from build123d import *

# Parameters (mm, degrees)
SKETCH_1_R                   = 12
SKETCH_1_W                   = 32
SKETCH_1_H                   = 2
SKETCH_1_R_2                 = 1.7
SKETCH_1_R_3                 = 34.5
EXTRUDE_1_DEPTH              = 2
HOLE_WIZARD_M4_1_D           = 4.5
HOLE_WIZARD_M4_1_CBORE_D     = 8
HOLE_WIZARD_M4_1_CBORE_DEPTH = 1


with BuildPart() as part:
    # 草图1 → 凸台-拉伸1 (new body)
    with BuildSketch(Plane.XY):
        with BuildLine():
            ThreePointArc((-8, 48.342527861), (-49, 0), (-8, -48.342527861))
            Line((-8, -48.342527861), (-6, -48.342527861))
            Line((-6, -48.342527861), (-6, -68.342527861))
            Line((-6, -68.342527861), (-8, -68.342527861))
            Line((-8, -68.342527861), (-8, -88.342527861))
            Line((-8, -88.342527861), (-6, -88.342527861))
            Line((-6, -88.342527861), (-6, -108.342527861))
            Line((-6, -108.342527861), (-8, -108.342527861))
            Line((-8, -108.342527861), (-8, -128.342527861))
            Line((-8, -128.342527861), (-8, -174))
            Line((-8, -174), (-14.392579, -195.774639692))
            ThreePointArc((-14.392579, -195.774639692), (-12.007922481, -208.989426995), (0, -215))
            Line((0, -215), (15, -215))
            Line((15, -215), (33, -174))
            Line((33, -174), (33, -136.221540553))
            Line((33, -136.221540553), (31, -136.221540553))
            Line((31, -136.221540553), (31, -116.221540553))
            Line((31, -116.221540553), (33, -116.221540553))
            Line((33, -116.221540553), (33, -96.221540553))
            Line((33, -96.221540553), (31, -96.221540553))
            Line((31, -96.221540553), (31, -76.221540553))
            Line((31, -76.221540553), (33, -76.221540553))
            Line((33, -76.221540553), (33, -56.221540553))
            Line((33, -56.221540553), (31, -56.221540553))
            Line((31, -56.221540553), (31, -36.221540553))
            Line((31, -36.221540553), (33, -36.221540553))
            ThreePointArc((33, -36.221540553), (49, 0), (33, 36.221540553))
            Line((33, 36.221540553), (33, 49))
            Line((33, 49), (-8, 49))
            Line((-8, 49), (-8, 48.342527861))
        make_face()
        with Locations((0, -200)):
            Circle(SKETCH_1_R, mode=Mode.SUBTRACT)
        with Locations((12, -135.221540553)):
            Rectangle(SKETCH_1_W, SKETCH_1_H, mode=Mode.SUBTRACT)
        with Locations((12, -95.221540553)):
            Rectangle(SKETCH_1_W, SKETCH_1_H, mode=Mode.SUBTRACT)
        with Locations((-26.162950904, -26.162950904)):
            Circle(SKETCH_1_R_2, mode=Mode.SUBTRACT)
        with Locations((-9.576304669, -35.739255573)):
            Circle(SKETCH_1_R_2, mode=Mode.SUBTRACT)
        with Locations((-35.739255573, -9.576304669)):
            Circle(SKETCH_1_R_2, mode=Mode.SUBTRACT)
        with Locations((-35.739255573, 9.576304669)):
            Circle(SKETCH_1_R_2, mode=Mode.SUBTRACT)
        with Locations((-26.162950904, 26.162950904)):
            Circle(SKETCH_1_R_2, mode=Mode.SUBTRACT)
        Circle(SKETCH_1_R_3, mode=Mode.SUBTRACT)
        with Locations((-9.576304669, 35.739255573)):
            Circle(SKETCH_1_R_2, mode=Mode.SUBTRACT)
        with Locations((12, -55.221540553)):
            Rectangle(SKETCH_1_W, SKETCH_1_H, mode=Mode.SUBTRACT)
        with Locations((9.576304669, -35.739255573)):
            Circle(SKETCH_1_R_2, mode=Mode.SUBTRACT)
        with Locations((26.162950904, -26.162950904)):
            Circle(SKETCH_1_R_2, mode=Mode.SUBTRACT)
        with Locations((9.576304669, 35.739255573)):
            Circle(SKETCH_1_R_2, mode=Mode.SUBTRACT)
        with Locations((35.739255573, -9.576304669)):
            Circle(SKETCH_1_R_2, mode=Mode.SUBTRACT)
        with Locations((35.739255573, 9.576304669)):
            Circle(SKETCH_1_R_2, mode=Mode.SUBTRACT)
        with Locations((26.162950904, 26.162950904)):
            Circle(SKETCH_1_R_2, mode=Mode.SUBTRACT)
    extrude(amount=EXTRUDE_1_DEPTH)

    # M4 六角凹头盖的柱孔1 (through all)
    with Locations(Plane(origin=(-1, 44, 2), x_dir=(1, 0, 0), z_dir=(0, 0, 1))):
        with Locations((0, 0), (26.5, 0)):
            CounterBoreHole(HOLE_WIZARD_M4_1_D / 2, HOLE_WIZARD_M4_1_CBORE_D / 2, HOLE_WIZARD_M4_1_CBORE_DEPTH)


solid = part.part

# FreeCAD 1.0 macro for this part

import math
import FreeCAD as App
import Part
import Sketcher

V = App.Vector


def add_polygon(sketch, points):
    """Adds a closed chain of lines whose ends are joined by coincident constraints."""
    first, n = sketch.GeometryCount, len(points)
    for a, b in zip(points, points[1:] + points[:1]):
        sketch.addGeometry(Part.LineSegment(App.Vector(*a, 0), App.Vector(*b, 0)), False)
    for i in range(n):
        sketch.addConstraint(Sketcher.Constraint("Coincident", first + i, 2, first + (i + 1) % n, 1))

doc = App.newDocument("Part")
body = doc.addObject("PartDesign::Body", "Body")

# Sketch on XY plane
sketch1 = body.newObject("Sketcher::SketchObject", "Sketch")
sketch1.AttachmentSupport = (doc.getObject("XY_Plane"), [""])
sketch1.MapMode = "FlatFace"
sketch1.addGeometry(Part.ArcOfCircle(Part.Circle(V(0, 0, 0), V(0, 0, 1), 49), math.radians(99), math.radians(261)), False)  # 0
sketch1.addGeometry(Part.LineSegment(V(-8, -48.3, 0), V(-6, -48.3, 0)), False)  # 1
sketch1.addGeometry(Part.LineSegment(V(-6, -48.3, 0), V(-6, -68.3, 0)), False)  # 2
sketch1.addGeometry(Part.LineSegment(V(-6, -68.3, 0), V(-8, -68.3, 0)), False)  # 3
sketch1.addGeometry(Part.LineSegment(V(-8, -68.3, 0), V(-8, -88.3, 0)), False)  # 4
sketch1.addGeometry(Part.LineSegment(V(-8, -88.3, 0), V(-6, -88.3, 0)), False)  # 5
sketch1.addGeometry(Part.LineSegment(V(-6, -88.3, 0), V(-6, -108.3, 0)), False)  # 6
sketch1.addGeometry(Part.LineSegment(V(-6, -108.3, 0), V(-8, -108.3, 0)), False)  # 7
sketch1.addGeometry(Part.LineSegment(V(-8, -108.3, 0), V(-8, -174, 0)), False)  # 8
sketch1.addGeometry(Part.LineSegment(V(-8, -174, 0), V(-14.4, -195.8, 0)), False)  # 9
sketch1.addGeometry(Part.ArcOfCircle(Part.Circle(V(0, -200, 0), V(0, 0, 1), 15), math.radians(164), math.radians(270)), False)  # 10
sketch1.addGeometry(Part.LineSegment(V(0, -215, 0), V(15, -215, 0)), False)  # 11
sketch1.addGeometry(Part.LineSegment(V(15, -215, 0), V(33, -174, 0)), False)  # 12
sketch1.addGeometry(Part.LineSegment(V(33, -174, 0), V(33, -136.2, 0)), False)  # 13
sketch1.addGeometry(Part.LineSegment(V(33, -136.2, 0), V(31, -136.2, 0)), False)  # 14
sketch1.addGeometry(Part.LineSegment(V(31, -136.2, 0), V(31, -116.2, 0)), False)  # 15
sketch1.addGeometry(Part.LineSegment(V(31, -116.2, 0), V(33, -116.2, 0)), False)  # 16
sketch1.addGeometry(Part.LineSegment(V(33, -116.2, 0), V(33, -96.2, 0)), False)  # 17
sketch1.addGeometry(Part.LineSegment(V(33, -96.2, 0), V(31, -96.2, 0)), False)  # 18
sketch1.addGeometry(Part.LineSegment(V(31, -96.2, 0), V(31, -76.2, 0)), False)  # 19
sketch1.addGeometry(Part.LineSegment(V(31, -76.2, 0), V(33, -76.2, 0)), False)  # 20
sketch1.addGeometry(Part.LineSegment(V(33, -76.2, 0), V(33, -56.2, 0)), False)  # 21
sketch1.addGeometry(Part.LineSegment(V(33, -56.2, 0), V(31, -56.2, 0)), False)  # 22
sketch1.addGeometry(Part.LineSegment(V(31, -56.2, 0), V(31, -36.2, 0)), False)  # 23
sketch1.addGeometry(Part.LineSegment(V(31, -36.2, 0), V(33, -36.2, 0)), False)  # 24
sketch1.addGeometry(Part.ArcOfCircle(Part.Circle(V(0, 0, 0), V(0, 0, 1), 49), math.radians(-48), math.radians(48)), False)  # 25
sketch1.addGeometry(Part.LineSegment(V(33, 36.2, 0), V(33, 49, 0)), False)  # 26
sketch1.addGeometry(Part.LineSegment(V(33, 49, 0), V(-8, 49, 0)), False)  # 27
sketch1.addGeometry(Part.LineSegment(V(-8, 49, 0), V(-8, 48.3, 0)), False)  # 28
sketch1.addGeometry(Part.Circle(V(0, -200, 0), V(0, 0, 1), 12), False)  # 29
add_polygon(sketch1, [(28, -136.2), (-4, -136.2), (-4, -134.2), (28, -134.2)])  # lines 30-33
add_polygon(sketch1, [(28, -96.2), (-4, -96.2), (-4, -94.2), (28, -94.2)])  # lines 34-37
sketch1.addGeometry(Part.Circle(V(-26.2, -26.2, 0), V(0, 0, 1), 1.7), False)  # 38
sketch1.addGeometry(Part.Circle(V(-9.6, -35.7, 0), V(0, 0, 1), 1.7), False)  # 39
sketch1.addGeometry(Part.Circle(V(-35.7, -9.6, 0), V(0, 0, 1), 1.7), False)  # 40
sketch1.addGeometry(Part.Circle(V(-35.7, 9.6, 0), V(0, 0, 1), 1.7), False)  # 41
sketch1.addGeometry(Part.Circle(V(-26.2, 26.2, 0), V(0, 0, 1), 1.7), False)  # 42
sketch1.addGeometry(Part.Circle(V(-9.6, 35.7, 0), V(0, 0, 1), 1.7), False)  # 43
add_polygon(sketch1, [(28, -56.2), (-4, -56.2), (-4, -54.2), (28, -54.2)])  # lines 44-47
sketch1.addGeometry(Part.Circle(V(9.6, -35.7, 0), V(0, 0, 1), 1.7), False)  # 48
sketch1.addGeometry(Part.Circle(V(26.2, -26.2, 0), V(0, 0, 1), 1.7), False)  # 49
sketch1.addGeometry(Part.Circle(V(0, 0, 0), V(0, 0, 1), 34.5), False)  # 50
sketch1.addGeometry(Part.Circle(V(9.6, 35.7, 0), V(0, 0, 1), 1.7), False)  # 51
sketch1.addGeometry(Part.Circle(V(35.7, -9.6, 0), V(0, 0, 1), 1.7), False)  # 52
sketch1.addGeometry(Part.Circle(V(26.2, 26.2, 0), V(0, 0, 1), 1.7), False)  # 53
sketch1.addGeometry(Part.Circle(V(35.7, 9.6, 0), V(0, 0, 1), 1.7), False)  # 54
sketch1.addConstraint([
    Sketcher.Constraint("Coincident", 0, 2, 1, 1),
    Sketcher.Constraint("Coincident", 1, 2, 2, 1),
    Sketcher.Constraint("Coincident", 2, 2, 3, 1),
    Sketcher.Constraint("Coincident", 3, 2, 4, 1),
    Sketcher.Constraint("Coincident", 4, 2, 5, 1),
    Sketcher.Constraint("Coincident", 5, 2, 6, 1),
    Sketcher.Constraint("Coincident", 6, 2, 7, 1),
    Sketcher.Constraint("Coincident", 7, 2, 8, 1),
    Sketcher.Constraint("Coincident", 8, 2, 9, 1),
    Sketcher.Constraint("Tangent", 9, 2, 10, 1),
    Sketcher.Constraint("Tangent", 10, 2, 11, 1),
    Sketcher.Constraint("Coincident", 11, 2, 12, 1),
    Sketcher.Constraint("Coincident", 12, 2, 13, 1),
    Sketcher.Constraint("Coincident", 13, 2, 14, 1),
    Sketcher.Constraint("Coincident", 14, 2, 15, 1),
    Sketcher.Constraint("Coincident", 15, 2, 16, 1),
    Sketcher.Constraint("Coincident", 16, 2, 17, 1),
    Sketcher.Constraint("Coincident", 17, 2, 18, 1),
    Sketcher.Constraint("Coincident", 18, 2, 19, 1),
    Sketcher.Constraint("Coincident", 19, 2, 20, 1),
    Sketcher.Constraint("Coincident", 20, 2, 21, 1),
    Sketcher.Constraint("Coincident", 21, 2, 22, 1),
    Sketcher.Constraint("Coincident", 22, 2, 23, 1),
    Sketcher.Constraint("Coincident", 23, 2, 24, 1),
    Sketcher.Constraint("Coincident", 24, 2, 25, 1),
    Sketcher.Constraint("Coincident", 25, 2, 26, 1),
    Sketcher.Constraint("Coincident", 26, 2, 27, 1),
    Sketcher.Constraint("Coincident", 27, 2, 28, 1),
    Sketcher.Constraint("Coincident", 28, 2, 0, 1),
    Sketcher.Constraint("Horizontal", 1),
    Sketcher.Constraint("Vertical", 2),
    Sketcher.Constraint("Horizontal", 3),
    Sketcher.Constraint("Vertical", 4),
    Sketcher.Constraint("Horizontal", 5),
    Sketcher.Constraint("Vertical", 6),
    Sketcher.Constraint("Horizontal", 7),
    Sketcher.Constraint("Vertical", 8),
    Sketcher.Constraint("Horizontal", 11),
    Sketcher.Constraint("Vertical", 13),
    Sketcher.Constraint("Horizontal", 14),
    Sketcher.Constraint("Vertical", 15),
    Sketcher.Constraint("Horizontal", 16),
    Sketcher.Constraint("Vertical", 17),
    Sketcher.Constraint("Horizontal", 18),
    Sketcher.Constraint("Vertical", 19),
    Sketcher.Constraint("Horizontal", 20),
    Sketcher.Constraint("Vertical", 21),
    Sketcher.Constraint("Horizontal", 22),
    Sketcher.Constraint("Vertical", 23),
    Sketcher.Constraint("Horizontal", 24),
    Sketcher.Constraint("Vertical", 26),
    Sketcher.Constraint("Horizontal", 27),
    Sketcher.Constraint("Vertical", 28),
    Sketcher.Constraint("Horizontal", 30),
    Sketcher.Constraint("Vertical", 31),
    Sketcher.Constraint("Horizontal", 32),
    Sketcher.Constraint("Vertical", 33),
    Sketcher.Constraint("Horizontal", 34),
    Sketcher.Constraint("Vertical", 35),
    Sketcher.Constraint("Horizontal", 36),
    Sketcher.Constraint("Vertical", 37),
    Sketcher.Constraint("Horizontal", 44),
    Sketcher.Constraint("Vertical", 45),
    Sketcher.Constraint("Horizontal", 46),
    Sketcher.Constraint("Vertical", 47),
    Sketcher.Constraint("Coincident", 0, 3, -1, 1),
    Sketcher.Constraint("Coincident", 25, 3, -1, 1),
    Sketcher.Constraint("Coincident", 50, 3, -1, 1),
    Sketcher.Constraint("Coincident", 29, 3, 10, 3),
    Sketcher.Constraint("Equal", 0, 25),
    Sketcher.Constraint("Equal", 38, 39),
    Sketcher.Constraint("Equal", 39, 40),
    Sketcher.Constraint("Equal", 40, 41),
    Sketcher.Constraint("Equal", 41, 42),
    Sketcher.Constraint("Equal", 42, 43),
    Sketcher.Constraint("Equal", 43, 48),
    Sketcher.Constraint("Equal", 48, 49),
    Sketcher.Constraint("Equal", 49, 51),
    Sketcher.Constraint("Equal", 51, 52),
    Sketcher.Constraint("Equal", 52, 53),
    Sketcher.Constraint("Equal", 53, 54),
    Sketcher.Constraint("Symmetric", 43, 3, 48, 3, -1, 1),
    Sketcher.Constraint("Symmetric", 42, 3, 49, 3, -1, 1),
    Sketcher.Constraint("Symmetric", 39, 3, 51, 3, -1, 1),
    Sketcher.Constraint("Symmetric", 41, 3, 52, 3, -1, 1),
    Sketcher.Constraint("Symmetric", 38, 3, 53, 3, -1, 1),
    Sketcher.Constraint("Symmetric", 40, 3, 54, 3, -1, 1),
    Sketcher.Constraint("Symmetric", 39, 3, 48, 3, -2),
    Sketcher.Constraint("Symmetric", 38, 3, 49, 3, -2),
    Sketcher.Constraint("Symmetric", 40, 3, 52, 3, -2),
    Sketcher.Constraint("PointOnObject", 10, 3, -2),
    Sketcher.Constraint("Horizontal", 8, 2, 12, 2),
    Sketcher.Constraint("Horizontal", 14, 2, 30, 2),
    Sketcher.Constraint("Horizontal", 18, 2, 34, 2),
    Sketcher.Constraint("Horizontal", 22, 2, 44, 2),
    Sketcher.Constraint("Vertical", 0, 2, 3, 2),
    Sketcher.Constraint("Vertical", 2, 2, 5, 2),
    Sketcher.Constraint("Vertical", 4, 2, 7, 2),
    Sketcher.Constraint("Vertical", 13, 2, 16, 2),
    Sketcher.Constraint("Vertical", 15, 2, 18, 2),
    Sketcher.Constraint("Vertical", 17, 2, 20, 2),
    Sketcher.Constraint("Vertical", 19, 2, 22, 2),
    Sketcher.Constraint("Vertical", 21, 2, 24, 2),
    Sketcher.Constraint("Vertical", 24, 2, 25, 2),
    Sketcher.Constraint("Vertical", 8, 2, 27, 2),
    Sketcher.Constraint("Vertical", 31, 2, 34, 2),
    Sketcher.Constraint("Vertical", 33, 2, 36, 2),
    Sketcher.Constraint("Vertical", 35, 2, 44, 2),
    Sketcher.Constraint("Vertical", 37, 2, 46, 2),
    Sketcher.Constraint("Equal", 7, 14),
    Sketcher.Constraint("Equal", 2, 4),
    Sketcher.Constraint("Equal", 4, 6),
    Sketcher.Constraint("Equal", 6, 15),
    Sketcher.Constraint("Equal", 15, 17),
    Sketcher.Constraint("Equal", 17, 19),
    Sketcher.Constraint("Equal", 19, 21),
    Sketcher.Constraint("Equal", 21, 23),
    Sketcher.Constraint("Equal", 24, 31),
    Sketcher.Constraint("Equal", 33, 35),
    Sketcher.Constraint("Equal", 37, 45),
    Sketcher.Constraint("Diameter", 29, 24.0),
    Sketcher.Constraint("Diameter", 50, 69.0),
    Sketcher.Constraint("Radius", 0, 49.0),
    Sketcher.Constraint("Radius", 10, 15.0),
    Sketcher.Constraint("Diameter", 38, 3.4),
    Sketcher.Constraint("DistanceX", 1, 1, 1, 2, 2.0),
    Sketcher.Constraint("DistanceX", 11, 1, 11, 2, 15.0),
    Sketcher.Constraint("DistanceX", 27, 2, 27, 1, 41.0),
    Sketcher.Constraint("DistanceX", 30, 2, 30, 1, 32.0),
    Sketcher.Constraint("DistanceY", 2, 2, 2, 1, 20.0),
    Sketcher.Constraint("DistanceY", 10, 3, -1, 1, 200.0),
    Sketcher.Constraint("DistanceX", 0, 2, -1, 1, 8.0),
    Sketcher.Constraint("DistanceY", 8, 2, -1, 1, 174.0),
    Sketcher.Constraint("DistanceY", -1, 1, 26, 2, 49.0),
    Sketcher.Constraint("DistanceX", 30, 2, -1, 1, 4.0),
    Sketcher.Constraint("DistanceY", 38, 3, 42, 3, 52.325902),
    Sketcher.Constraint("DistanceX", 38, 3, 49, 3, 52.325902),
    Sketcher.Constraint("DistanceX", 40, 3, 39, 3, 26.162951),
    Sketcher.Constraint("DistanceY", 39, 3, 40, 3, 26.162951),
    Sketcher.Constraint("DistanceY", 40, 3, 41, 3, 19.152609),
    Sketcher.Constraint("DistanceX", 39, 3, 48, 3, 19.152609),
])
pad1 = body.newObject("PartDesign::Pad", "Pad")
pad1.Profile = sketch1
pad1.Length = 2

# Sketch on XY plane
sketch2 = body.newObject("Sketcher::SketchObject", "Sketch001")
sketch2.AttachmentSupport = (doc.getObject("XY_Plane"), [""])
sketch2.MapMode = "FlatFace"
sketch2.AttachmentOffset = App.Placement(V(0, 0, 2), App.Rotation())
sketch2.addGeometry([
    Part.Circle(V(-1, 44, 0), V(0, 0, 1), 2.2),
    Part.Circle(V(25.5, 44, 0), V(0, 0, 1), 2.2),
], False)
sketch2.addConstraint([
    Sketcher.Constraint("Equal", 0, 1),
    Sketcher.Constraint("Horizontal", 0, 3, 1, 3),
    Sketcher.Constraint("Diameter", 0, 4.5),
    Sketcher.Constraint("DistanceX", 0, 3, -1, 1, 1.0),
    Sketcher.Constraint("DistanceY", -1, 1, 0, 3, 44.0),
    Sketcher.Constraint("DistanceX", -1, 1, 1, 3, 25.5),
])
doc.recompute()
hole = body.newObject("PartDesign::Hole", "Hole")
hole.Profile = sketch2
hole.ThreadType = "None"
hole.Diameter = 4.5
hole.DepthType = "ThroughAll"
hole.HoleCutType = "Counterbore"
hole.HoleCutDiameter = 8
hole.HoleCutDepth = 1

doc.recompute()
